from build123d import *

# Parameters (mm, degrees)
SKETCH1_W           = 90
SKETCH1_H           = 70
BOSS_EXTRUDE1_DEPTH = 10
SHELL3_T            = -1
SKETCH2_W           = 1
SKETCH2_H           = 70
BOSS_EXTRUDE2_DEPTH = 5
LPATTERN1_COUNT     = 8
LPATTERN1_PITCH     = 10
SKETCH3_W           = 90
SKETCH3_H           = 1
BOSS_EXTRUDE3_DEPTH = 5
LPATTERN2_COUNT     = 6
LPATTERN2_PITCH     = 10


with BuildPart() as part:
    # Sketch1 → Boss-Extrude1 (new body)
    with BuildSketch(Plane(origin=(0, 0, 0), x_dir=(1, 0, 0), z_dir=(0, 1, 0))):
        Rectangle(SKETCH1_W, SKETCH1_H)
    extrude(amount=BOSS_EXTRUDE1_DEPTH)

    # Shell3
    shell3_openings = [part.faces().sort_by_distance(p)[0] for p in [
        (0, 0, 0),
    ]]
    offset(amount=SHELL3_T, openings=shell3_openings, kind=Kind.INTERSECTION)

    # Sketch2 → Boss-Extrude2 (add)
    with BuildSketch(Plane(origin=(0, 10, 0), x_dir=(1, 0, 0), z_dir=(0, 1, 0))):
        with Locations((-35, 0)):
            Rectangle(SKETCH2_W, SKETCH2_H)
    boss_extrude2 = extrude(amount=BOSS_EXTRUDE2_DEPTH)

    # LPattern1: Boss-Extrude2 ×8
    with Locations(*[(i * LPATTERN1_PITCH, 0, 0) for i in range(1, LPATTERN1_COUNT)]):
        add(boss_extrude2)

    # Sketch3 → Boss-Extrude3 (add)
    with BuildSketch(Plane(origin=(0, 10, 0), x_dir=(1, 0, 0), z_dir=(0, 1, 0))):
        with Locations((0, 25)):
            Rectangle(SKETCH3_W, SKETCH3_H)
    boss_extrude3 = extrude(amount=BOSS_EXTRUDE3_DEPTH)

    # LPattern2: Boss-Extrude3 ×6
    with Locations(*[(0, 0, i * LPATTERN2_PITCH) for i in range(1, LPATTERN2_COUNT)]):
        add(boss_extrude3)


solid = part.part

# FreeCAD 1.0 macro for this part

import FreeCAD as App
import Part
import Sketcher


def faces_at(feature, points):
    """Names of the faces that lie closest to the given points."""
    faces = feature.Shape.Faces
    near = lambda p: min(range(len(faces)), key=lambda i: faces[i].distToShape(Part.Vertex(*p))[0])
    return sorted({f"Face{near(p) + 1}" for p in points})

doc = App.newDocument("Part")
body = doc.addObject("PartDesign::Body", "Body")

# Sketch on XZ plane
sketch1 = body.newObject("Sketcher::SketchObject", "Sketch")
sketch1.AttachmentSupport = (doc.getObject("XZ_Plane"), [""])
sketch1.MapMode = "FlatFace"
sketch1.addGeometry(Part.LineSegment(App.Vector(-45, -35, 0), App.Vector(-45, 35, 0)), False)
sketch1.addGeometry(Part.LineSegment(App.Vector(-45, 35, 0), App.Vector(45, 35, 0)), False)
sketch1.addGeometry(Part.LineSegment(App.Vector(45, 35, 0), App.Vector(45, -35, 0)), False)
sketch1.addGeometry(Part.LineSegment(App.Vector(45, -35, 0), App.Vector(-45, -35, 0)), False)
sketch1.addConstraint(Sketcher.Constraint("Coincident", 0, 2, 1, 1))
sketch1.addConstraint(Sketcher.Constraint("Coincident", 1, 2, 2, 1))
sketch1.addConstraint(Sketcher.Constraint("Coincident", 2, 2, 3, 1))
sketch1.addConstraint(Sketcher.Constraint("Coincident", 3, 2, 0, 1))
sketch1.addConstraint(Sketcher.Constraint("Vertical", 0))
sketch1.addConstraint(Sketcher.Constraint("Horizontal", 1))
sketch1.addConstraint(Sketcher.Constraint("Vertical", 2))
sketch1.addConstraint(Sketcher.Constraint("Horizontal", 3))
sketch1.addConstraint(Sketcher.Constraint("Symmetric", 0, 2, 2, 2, -1, 1))
sketch1.addConstraint(Sketcher.Constraint("DistanceX", 1, 1, 1, 2, 90.0))
sketch1.addConstraint(Sketcher.Constraint("DistanceY", 0, 1, 0, 2, 70.0))
pad1 = body.newObject("PartDesign::Pad", "Pad")
pad1.Profile = sketch1
pad1.Length = 10
pad1.Reversed = True
doc.recompute()

thickness = body.newObject("PartDesign::Thickness", "Thickness")
thickness.Base = (pad1, faces_at(pad1, [(0, 0, 0)]))
thickness.Value = 1
thickness.Reversed = True
thickness.Join = "Intersection"

# Sketch on XZ plane
sketch2 = body.newObject("Sketcher::SketchObject", "Sketch001")
sketch2.AttachmentSupport = (doc.getObject("XZ_Plane"), [""])
sketch2.MapMode = "FlatFace"
sketch2.AttachmentOffset = App.Placement(App.Vector(0, 0, -10), App.Rotation())
sketch2.addGeometry(Part.LineSegment(App.Vector(-35.5, -35, 0), App.Vector(-35.5, 35, 0)), False)
sketch2.addGeometry(Part.LineSegment(App.Vector(-35.5, 35, 0), App.Vector(-34.5, 35, 0)), False)
sketch2.addGeometry(Part.LineSegment(App.Vector(-34.5, 35, 0), App.Vector(-34.5, -35, 0)), False)
sketch2.addGeometry(Part.LineSegment(App.Vector(-34.5, -35, 0), App.Vector(-35.5, -35, 0)), False)
sketch2.addConstraint(Sketcher.Constraint("Coincident", 0, 2, 1, 1))
sketch2.addConstraint(Sketcher.Constraint("Coincident", 1, 2, 2, 1))
sketch2.addConstraint(Sketcher.Constraint("Coincident", 2, 2, 3, 1))
sketch2.addConstraint(Sketcher.Constraint("Coincident", 3, 2, 0, 1))
sketch2.addConstraint(Sketcher.Constraint("Vertical", 0))
sketch2.addConstraint(Sketcher.Constraint("Horizontal", 1))
sketch2.addConstraint(Sketcher.Constraint("Vertical", 2))
sketch2.addConstraint(Sketcher.Constraint("Horizontal", 3))
sketch2.addConstraint(Sketcher.Constraint("DistanceX", 1, 1, 1, 2, 1.0))
sketch2.addConstraint(Sketcher.Constraint("DistanceY", 0, 1, 0, 2, 70.0))
sketch2.addConstraint(Sketcher.Constraint("DistanceY", -1, 1, 0, 2, 35.0))
sketch2.addConstraint(Sketcher.Constraint("DistanceX", 0, 2, -1, 1, 35.5))
pad2 = body.newObject("PartDesign::Pad", "Pad001")
pad2.Profile = sketch2
pad2.Length = 5
pad2.Reversed = True
doc.recompute()

linearpattern = body.newObject("PartDesign::LinearPattern", "LinearPattern")
linearpattern.Originals = [pad2]
linearpattern.Direction = (doc.getObject("X_Axis"), [""])
linearpattern.Mode = "offset"
linearpattern.Offset = 10
linearpattern.Occurrences = 8
body.Tip = linearpattern

# Sketch on XZ plane
sketch3 = body.newObject("Sketcher::SketchObject", "Sketch002")
sketch3.AttachmentSupport = (doc.getObject("XZ_Plane"), [""])
sketch3.MapMode = "FlatFace"
sketch3.AttachmentOffset = App.Placement(App.Vector(0, 0, -10), App.Rotation())
sketch3.addGeometry(Part.LineSegment(App.Vector(-45, -25.5, 0), App.Vector(-45, -24.5, 0)), False)
sketch3.addGeometry(Part.LineSegment(App.Vector(-45, -24.5, 0), App.Vector(45, -24.5, 0)), False)
sketch3.addGeometry(Part.LineSegment(App.Vector(45, -24.5, 0), App.Vector(45, -25.5, 0)), False)
sketch3.addGeometry(Part.LineSegment(App.Vector(45, -25.5, 0), App.Vector(-45, -25.5, 0)), False)
sketch3.addConstraint(Sketcher.Constraint("Coincident", 0, 2, 1, 1))
sketch3.addConstraint(Sketcher.Constraint("Coincident", 1, 2, 2, 1))
sketch3.addConstraint(Sketcher.Constraint("Coincident", 2, 2, 3, 1))
sketch3.addConstraint(Sketcher.Constraint("Coincident", 3, 2, 0, 1))
sketch3.addConstraint(Sketcher.Constraint("Vertical", 0))
sketch3.addConstraint(Sketcher.Constraint("Horizontal", 1))
sketch3.addConstraint(Sketcher.Constraint("Vertical", 2))
sketch3.addConstraint(Sketcher.Constraint("Horizontal", 3))
sketch3.addConstraint(Sketcher.Constraint("DistanceX", 1, 1, 1, 2, 90.0))
sketch3.addConstraint(Sketcher.Constraint("DistanceY", 0, 1, 0, 2, 1.0))
sketch3.addConstraint(Sketcher.Constraint("DistanceX", 0, 2, -1, 1, 45.0))
sketch3.addConstraint(Sketcher.Constraint("DistanceY", 0, 2, -1, 1, 24.5))
pad3 = body.newObject("PartDesign::Pad", "Pad002")
pad3.Profile = sketch3
pad3.Length = 5
pad3.Reversed = True
doc.recompute()

linearpattern2 = body.newObject("PartDesign::LinearPattern", "LinearPattern001")
linearpattern2.Originals = [pad3]
linearpattern2.Direction = (doc.getObject("Z_Axis"), [""])
linearpattern2.Mode = "offset"
linearpattern2.Offset = 10
linearpattern2.Occurrences = 6
body.Tip = linearpattern2

doc.recompute()
